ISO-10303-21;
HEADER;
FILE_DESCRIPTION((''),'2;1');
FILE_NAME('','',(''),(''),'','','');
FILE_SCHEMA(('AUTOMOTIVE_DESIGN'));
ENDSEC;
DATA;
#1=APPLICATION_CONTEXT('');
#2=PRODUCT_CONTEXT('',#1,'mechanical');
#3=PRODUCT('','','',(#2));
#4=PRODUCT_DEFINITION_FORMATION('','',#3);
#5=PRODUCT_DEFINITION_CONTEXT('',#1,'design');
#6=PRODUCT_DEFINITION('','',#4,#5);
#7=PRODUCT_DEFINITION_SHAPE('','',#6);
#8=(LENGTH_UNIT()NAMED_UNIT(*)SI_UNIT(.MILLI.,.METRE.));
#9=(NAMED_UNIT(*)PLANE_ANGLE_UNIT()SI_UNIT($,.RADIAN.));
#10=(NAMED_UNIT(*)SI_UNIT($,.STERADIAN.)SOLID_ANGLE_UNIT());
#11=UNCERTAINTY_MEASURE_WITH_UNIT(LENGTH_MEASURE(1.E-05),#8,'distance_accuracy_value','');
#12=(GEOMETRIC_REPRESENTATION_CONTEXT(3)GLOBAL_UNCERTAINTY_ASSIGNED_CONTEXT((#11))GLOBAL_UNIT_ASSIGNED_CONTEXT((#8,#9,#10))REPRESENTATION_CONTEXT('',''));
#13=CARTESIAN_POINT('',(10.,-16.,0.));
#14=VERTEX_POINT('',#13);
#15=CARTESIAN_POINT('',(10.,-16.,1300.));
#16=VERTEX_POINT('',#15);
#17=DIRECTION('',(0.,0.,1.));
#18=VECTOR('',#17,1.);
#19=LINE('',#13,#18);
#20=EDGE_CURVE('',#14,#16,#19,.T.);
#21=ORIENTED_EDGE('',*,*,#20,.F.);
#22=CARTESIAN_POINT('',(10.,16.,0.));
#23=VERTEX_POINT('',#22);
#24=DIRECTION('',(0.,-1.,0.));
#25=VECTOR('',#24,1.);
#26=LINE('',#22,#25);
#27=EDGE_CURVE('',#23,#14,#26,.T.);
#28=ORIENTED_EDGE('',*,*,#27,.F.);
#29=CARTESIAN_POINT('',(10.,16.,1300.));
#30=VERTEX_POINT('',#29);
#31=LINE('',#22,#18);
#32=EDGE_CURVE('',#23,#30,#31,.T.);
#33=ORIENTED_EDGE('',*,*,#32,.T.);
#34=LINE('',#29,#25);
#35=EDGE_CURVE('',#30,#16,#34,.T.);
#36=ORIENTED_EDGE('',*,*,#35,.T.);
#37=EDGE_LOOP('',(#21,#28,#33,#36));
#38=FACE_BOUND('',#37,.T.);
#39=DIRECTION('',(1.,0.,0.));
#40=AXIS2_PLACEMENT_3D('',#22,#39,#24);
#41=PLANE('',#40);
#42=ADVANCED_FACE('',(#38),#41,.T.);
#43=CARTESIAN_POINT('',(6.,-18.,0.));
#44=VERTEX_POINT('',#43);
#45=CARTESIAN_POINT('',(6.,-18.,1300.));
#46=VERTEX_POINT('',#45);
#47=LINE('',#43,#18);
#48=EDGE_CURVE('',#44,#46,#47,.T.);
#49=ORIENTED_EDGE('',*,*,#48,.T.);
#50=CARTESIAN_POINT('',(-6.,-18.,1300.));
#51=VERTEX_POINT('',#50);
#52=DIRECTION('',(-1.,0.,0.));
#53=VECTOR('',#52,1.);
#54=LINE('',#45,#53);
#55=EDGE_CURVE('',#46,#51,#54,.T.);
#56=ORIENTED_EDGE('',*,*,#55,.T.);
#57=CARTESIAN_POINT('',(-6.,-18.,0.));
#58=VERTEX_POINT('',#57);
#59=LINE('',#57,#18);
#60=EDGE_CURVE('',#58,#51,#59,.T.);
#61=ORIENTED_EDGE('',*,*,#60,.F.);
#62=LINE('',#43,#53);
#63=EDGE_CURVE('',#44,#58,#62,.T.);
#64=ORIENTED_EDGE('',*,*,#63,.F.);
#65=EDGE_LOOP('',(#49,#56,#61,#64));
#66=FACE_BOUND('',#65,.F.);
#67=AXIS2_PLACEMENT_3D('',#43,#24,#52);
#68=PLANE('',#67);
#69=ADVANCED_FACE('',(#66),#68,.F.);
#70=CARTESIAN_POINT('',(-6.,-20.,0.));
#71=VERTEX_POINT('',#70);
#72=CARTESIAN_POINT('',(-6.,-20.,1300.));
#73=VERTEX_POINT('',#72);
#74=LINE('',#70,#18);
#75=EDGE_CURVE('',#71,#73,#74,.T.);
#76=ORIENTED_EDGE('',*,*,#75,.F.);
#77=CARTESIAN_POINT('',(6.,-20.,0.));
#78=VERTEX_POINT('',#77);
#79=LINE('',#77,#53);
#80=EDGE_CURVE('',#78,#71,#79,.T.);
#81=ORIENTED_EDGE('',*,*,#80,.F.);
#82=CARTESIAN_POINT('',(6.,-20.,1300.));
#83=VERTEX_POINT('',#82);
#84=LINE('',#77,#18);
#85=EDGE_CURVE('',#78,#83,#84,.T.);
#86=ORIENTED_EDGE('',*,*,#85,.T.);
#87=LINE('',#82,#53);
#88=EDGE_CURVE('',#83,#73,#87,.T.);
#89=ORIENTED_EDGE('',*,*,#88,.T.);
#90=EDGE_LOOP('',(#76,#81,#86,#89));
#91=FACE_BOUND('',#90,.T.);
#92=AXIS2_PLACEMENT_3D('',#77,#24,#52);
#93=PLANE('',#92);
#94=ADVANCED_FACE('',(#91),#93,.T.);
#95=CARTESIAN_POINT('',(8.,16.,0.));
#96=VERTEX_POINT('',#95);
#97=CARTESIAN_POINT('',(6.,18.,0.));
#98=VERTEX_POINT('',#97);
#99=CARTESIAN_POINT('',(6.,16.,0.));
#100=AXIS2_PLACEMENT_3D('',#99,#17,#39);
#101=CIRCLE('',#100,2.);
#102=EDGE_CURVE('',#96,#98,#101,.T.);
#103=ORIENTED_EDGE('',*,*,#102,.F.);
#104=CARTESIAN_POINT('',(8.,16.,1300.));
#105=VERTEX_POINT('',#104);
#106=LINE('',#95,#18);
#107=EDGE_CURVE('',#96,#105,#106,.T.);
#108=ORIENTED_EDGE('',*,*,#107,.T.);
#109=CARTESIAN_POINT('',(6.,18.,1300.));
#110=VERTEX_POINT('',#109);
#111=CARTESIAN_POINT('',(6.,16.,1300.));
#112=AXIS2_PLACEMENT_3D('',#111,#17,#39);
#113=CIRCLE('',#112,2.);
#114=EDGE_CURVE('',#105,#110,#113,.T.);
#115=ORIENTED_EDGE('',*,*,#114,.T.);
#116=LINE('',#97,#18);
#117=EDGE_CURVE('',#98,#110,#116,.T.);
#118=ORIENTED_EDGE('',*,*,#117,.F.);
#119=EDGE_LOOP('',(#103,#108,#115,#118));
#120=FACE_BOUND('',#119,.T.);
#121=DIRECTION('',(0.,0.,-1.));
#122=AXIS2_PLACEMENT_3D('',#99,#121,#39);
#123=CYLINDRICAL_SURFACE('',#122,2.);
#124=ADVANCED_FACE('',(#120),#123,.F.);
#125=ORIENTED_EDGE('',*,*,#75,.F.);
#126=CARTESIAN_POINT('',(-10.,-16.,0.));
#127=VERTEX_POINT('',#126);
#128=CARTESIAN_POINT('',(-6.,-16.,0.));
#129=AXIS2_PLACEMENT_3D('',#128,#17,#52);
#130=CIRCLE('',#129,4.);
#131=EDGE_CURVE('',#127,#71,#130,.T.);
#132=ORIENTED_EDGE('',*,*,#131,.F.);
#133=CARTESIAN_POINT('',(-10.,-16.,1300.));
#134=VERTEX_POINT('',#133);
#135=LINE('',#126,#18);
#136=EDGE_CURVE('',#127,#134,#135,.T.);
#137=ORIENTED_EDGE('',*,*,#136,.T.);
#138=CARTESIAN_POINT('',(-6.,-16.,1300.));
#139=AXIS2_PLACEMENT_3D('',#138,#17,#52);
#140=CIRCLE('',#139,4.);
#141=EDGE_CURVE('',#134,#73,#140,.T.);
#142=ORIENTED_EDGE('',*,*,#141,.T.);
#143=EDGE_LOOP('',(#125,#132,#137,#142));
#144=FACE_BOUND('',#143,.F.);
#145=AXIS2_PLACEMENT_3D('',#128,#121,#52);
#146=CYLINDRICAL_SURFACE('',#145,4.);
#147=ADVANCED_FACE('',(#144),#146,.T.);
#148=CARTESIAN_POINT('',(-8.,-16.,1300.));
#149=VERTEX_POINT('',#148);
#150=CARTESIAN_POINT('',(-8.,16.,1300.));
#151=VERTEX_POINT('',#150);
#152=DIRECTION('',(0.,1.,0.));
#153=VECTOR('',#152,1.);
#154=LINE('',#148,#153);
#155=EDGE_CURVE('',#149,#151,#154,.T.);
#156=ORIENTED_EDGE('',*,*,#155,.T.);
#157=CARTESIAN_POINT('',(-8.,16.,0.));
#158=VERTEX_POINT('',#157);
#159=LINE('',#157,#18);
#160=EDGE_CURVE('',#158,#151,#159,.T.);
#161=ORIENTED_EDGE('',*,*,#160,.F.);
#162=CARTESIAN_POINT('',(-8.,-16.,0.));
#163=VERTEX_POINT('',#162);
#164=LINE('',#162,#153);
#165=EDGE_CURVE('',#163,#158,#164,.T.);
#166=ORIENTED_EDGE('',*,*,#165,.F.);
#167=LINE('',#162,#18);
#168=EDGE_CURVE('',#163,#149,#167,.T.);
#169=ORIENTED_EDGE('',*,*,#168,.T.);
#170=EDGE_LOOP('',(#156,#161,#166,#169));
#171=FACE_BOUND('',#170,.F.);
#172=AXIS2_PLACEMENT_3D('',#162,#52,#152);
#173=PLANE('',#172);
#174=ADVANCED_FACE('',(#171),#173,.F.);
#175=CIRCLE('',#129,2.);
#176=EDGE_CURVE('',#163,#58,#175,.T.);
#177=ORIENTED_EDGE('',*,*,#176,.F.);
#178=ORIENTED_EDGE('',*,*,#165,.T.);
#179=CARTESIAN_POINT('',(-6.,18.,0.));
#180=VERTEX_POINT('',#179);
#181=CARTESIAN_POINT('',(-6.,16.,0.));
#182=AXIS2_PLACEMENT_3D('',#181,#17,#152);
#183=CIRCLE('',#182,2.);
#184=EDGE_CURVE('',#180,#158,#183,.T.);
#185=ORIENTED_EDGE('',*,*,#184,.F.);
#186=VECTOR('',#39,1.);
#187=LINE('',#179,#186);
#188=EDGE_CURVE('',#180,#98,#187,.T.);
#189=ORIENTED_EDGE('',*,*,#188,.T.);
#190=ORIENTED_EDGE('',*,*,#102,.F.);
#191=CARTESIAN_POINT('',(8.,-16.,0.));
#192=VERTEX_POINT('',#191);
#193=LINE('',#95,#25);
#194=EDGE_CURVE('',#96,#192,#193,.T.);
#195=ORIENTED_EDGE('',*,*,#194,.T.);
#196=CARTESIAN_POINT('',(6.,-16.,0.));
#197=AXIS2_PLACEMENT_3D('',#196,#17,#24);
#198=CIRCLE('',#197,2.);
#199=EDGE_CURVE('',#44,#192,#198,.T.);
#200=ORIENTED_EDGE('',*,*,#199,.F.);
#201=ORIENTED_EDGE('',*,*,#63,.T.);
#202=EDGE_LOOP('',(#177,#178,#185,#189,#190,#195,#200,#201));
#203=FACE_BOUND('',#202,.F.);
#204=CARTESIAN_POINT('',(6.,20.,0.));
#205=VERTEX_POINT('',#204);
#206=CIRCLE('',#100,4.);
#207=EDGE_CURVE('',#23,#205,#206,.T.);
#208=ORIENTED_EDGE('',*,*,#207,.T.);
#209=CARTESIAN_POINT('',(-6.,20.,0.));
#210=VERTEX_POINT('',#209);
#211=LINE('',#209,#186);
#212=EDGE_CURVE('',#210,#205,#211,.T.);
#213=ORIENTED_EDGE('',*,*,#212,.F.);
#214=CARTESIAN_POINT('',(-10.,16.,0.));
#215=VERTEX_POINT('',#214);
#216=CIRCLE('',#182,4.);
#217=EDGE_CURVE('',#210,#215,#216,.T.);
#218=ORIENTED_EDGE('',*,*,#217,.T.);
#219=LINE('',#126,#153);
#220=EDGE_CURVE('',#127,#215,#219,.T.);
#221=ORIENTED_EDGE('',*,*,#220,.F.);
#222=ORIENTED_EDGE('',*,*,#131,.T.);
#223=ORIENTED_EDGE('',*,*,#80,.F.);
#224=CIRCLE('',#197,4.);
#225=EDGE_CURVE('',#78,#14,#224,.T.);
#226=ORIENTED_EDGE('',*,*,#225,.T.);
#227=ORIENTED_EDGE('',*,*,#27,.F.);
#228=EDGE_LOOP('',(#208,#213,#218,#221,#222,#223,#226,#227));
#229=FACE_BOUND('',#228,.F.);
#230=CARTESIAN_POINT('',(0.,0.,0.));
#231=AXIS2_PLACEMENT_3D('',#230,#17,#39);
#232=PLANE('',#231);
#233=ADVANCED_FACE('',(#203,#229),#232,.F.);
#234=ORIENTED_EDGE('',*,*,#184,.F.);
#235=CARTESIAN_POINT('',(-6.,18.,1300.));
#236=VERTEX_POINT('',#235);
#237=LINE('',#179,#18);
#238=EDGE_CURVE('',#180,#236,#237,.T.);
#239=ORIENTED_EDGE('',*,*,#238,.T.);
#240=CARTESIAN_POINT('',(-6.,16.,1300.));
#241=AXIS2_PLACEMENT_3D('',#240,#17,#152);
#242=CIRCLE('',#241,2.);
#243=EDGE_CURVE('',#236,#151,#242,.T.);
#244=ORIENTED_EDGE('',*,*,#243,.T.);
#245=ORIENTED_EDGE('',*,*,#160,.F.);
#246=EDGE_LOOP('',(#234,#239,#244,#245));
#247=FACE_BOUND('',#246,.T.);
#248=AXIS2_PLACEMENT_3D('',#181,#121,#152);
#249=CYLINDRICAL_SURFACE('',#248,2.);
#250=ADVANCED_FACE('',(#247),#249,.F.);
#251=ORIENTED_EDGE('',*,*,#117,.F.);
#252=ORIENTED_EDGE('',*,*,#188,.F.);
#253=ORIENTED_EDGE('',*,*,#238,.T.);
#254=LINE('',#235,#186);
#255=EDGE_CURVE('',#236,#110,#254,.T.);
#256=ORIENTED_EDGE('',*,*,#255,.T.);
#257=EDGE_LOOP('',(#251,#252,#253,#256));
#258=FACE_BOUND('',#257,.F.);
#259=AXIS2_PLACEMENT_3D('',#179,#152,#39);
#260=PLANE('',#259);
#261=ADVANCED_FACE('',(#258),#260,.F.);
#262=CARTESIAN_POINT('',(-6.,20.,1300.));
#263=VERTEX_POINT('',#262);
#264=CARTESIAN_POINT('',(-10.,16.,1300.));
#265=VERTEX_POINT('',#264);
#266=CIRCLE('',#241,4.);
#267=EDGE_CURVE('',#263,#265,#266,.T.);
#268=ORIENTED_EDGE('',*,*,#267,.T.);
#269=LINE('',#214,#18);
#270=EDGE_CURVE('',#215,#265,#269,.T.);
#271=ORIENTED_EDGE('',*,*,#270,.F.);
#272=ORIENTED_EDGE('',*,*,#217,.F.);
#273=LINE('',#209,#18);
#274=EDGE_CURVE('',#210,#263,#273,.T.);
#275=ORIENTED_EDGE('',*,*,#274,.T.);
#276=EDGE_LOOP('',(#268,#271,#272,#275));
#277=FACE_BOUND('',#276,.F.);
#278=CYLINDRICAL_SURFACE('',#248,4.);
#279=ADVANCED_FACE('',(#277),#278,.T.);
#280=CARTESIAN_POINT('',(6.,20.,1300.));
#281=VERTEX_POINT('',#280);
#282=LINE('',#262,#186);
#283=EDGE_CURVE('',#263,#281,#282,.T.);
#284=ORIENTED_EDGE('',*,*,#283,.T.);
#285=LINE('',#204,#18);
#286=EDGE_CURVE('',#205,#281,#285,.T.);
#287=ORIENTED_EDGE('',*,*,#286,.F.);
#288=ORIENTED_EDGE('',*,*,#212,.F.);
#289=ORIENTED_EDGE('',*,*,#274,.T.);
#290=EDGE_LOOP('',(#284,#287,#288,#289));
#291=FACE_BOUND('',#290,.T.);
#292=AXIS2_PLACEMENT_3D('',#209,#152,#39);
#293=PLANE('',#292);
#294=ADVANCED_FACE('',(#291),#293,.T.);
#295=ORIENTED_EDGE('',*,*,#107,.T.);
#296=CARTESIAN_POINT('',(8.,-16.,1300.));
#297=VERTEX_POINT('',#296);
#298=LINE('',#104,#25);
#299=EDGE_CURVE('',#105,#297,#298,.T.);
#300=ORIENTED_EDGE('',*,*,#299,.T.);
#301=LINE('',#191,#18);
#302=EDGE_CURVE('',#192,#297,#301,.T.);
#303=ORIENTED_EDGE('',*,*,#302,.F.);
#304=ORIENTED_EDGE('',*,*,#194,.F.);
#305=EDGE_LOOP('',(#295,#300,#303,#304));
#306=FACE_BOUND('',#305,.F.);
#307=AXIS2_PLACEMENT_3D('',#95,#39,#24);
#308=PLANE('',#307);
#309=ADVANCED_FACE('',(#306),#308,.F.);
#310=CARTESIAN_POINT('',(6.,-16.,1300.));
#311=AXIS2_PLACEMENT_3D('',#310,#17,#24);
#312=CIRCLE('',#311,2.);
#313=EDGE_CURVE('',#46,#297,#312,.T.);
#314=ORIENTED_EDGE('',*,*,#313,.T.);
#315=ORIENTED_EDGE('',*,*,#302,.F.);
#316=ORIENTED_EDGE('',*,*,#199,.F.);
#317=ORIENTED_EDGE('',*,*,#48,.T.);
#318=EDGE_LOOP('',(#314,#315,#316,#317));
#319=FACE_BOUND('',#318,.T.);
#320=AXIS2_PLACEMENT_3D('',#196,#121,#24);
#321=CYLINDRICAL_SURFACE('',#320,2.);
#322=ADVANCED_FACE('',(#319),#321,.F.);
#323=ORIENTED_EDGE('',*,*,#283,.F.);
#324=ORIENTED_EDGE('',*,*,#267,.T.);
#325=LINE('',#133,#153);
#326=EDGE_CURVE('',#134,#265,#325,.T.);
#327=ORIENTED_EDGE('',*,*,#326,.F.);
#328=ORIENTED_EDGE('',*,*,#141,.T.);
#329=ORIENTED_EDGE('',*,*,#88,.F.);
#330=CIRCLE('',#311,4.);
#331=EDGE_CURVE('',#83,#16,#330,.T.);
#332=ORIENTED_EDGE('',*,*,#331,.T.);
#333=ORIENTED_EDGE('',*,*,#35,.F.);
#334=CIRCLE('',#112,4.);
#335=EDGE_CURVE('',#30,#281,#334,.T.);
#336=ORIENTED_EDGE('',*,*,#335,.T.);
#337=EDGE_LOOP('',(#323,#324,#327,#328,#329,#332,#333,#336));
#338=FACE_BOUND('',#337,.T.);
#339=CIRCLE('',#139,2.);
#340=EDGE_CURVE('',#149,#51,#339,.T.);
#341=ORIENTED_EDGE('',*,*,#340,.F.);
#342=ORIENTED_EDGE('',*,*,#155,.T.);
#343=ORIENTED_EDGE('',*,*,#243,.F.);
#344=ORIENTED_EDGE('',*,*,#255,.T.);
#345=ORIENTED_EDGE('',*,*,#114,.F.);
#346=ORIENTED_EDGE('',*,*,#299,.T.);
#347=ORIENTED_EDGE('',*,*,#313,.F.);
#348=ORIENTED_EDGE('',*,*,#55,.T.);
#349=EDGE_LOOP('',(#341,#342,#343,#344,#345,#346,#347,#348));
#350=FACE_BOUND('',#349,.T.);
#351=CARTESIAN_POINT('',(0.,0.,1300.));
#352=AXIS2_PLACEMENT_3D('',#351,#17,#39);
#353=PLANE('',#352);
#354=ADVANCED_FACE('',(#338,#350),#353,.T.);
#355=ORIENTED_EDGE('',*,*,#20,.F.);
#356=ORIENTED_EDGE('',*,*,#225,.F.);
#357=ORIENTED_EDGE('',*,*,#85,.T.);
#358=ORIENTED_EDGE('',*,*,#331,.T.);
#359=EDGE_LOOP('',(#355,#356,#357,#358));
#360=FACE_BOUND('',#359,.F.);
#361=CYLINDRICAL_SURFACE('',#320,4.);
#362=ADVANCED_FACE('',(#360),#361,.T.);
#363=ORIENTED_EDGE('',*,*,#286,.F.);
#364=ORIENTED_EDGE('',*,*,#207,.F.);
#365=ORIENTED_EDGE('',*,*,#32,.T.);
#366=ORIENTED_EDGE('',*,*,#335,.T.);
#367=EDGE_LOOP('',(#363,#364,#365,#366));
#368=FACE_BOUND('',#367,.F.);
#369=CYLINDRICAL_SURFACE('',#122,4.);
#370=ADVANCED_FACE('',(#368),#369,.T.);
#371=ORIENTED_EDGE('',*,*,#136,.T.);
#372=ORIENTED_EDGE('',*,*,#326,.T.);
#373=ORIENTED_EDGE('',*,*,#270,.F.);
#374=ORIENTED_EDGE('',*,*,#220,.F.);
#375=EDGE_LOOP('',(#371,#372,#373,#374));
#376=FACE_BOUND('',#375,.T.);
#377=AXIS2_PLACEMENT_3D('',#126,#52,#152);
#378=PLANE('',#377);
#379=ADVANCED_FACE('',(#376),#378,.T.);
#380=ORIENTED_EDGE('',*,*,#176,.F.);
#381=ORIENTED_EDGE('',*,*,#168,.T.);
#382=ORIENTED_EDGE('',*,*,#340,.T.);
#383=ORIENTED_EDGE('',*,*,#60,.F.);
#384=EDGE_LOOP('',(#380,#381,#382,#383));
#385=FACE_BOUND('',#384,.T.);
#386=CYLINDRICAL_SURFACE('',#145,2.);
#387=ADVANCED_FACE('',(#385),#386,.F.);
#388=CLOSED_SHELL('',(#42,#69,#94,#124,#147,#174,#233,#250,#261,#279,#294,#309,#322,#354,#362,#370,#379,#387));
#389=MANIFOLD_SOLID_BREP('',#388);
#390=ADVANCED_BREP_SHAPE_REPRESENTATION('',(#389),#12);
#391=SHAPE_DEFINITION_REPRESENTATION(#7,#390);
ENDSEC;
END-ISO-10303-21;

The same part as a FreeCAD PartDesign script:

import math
import FreeCAD as App
import Part
import Sketcher

doc = App.newDocument("Part")
body = doc.addObject("PartDesign::Body", "Body")

# Sketch on XY plane
sketch1 = doc.addObject("Sketcher::SketchObject", "Sketch")
body.addObject(sketch1)
sketch1.AttachmentSupport = (doc.XY_Plane, [""])
sketch1.MapMode = "FlatFace"
sketch1.addGeometry([
    Part.LineSegment(App.Vector(-10, 16, 0), App.Vector(-10, -16, 0)),  # 0
    Part.ArcOfCircle(Part.Circle(App.Vector(-6, -16, 0), App.Vector(0, 0, 1), 4), math.radians(180), math.radians(270)),  # 1
    Part.LineSegment(App.Vector(-6, -20, 0), App.Vector(6, -20, 0)),  # 2
    Part.ArcOfCircle(Part.Circle(App.Vector(6, -16, 0), App.Vector(0, 0, 1), 4), math.radians(-90), math.radians(0)),  # 3
    Part.LineSegment(App.Vector(10, -16, 0), App.Vector(10, 16, 0)),  # 4
    Part.ArcOfCircle(Part.Circle(App.Vector(6, 16, 0), App.Vector(0, 0, 1), 4), math.radians(0), math.radians(90)),  # 5
    Part.LineSegment(App.Vector(6, 20, 0), App.Vector(-6, 20, 0)),  # 6
    Part.ArcOfCircle(Part.Circle(App.Vector(-6, 16, 0), App.Vector(0, 0, 1), 4), math.radians(90), math.radians(180)),  # 7
    Part.ArcOfCircle(Part.Circle(App.Vector(-6, 16, 0), App.Vector(0, 0, 1), 2), math.radians(90), math.radians(180)),  # 8
    Part.LineSegment(App.Vector(-6, 18, 0), App.Vector(6, 18, 0)),  # 9
    Part.ArcOfCircle(Part.Circle(App.Vector(6, 16, 0), App.Vector(0, 0, 1), 2), math.radians(0), math.radians(90)),  # 10
    Part.LineSegment(App.Vector(8, 16, 0), App.Vector(8, -16, 0)),  # 11
    Part.ArcOfCircle(Part.Circle(App.Vector(6, -16, 0), App.Vector(0, 0, 1), 2), math.radians(-90), math.radians(0)),  # 12
    Part.LineSegment(App.Vector(6, -18, 0), App.Vector(-6, -18, 0)),  # 13
    Part.ArcOfCircle(Part.Circle(App.Vector(-6, -16, 0), App.Vector(0, 0, 1), 2), math.radians(180), math.radians(270)),  # 14
    Part.LineSegment(App.Vector(-8, -16, 0), App.Vector(-8, 16, 0)),  # 15
], False)
sketch1.addConstraint([
    Sketcher.Constraint("Tangent", 0, 2, 1, 1),
    Sketcher.Constraint("Tangent", 1, 2, 2, 1),
    Sketcher.Constraint("Tangent", 2, 2, 3, 1),
    Sketcher.Constraint("Tangent", 3, 2, 4, 1),
    Sketcher.Constraint("Tangent", 4, 2, 5, 1),
    Sketcher.Constraint("Tangent", 5, 2, 6, 1),
    Sketcher.Constraint("Tangent", 6, 2, 7, 1),
    Sketcher.Constraint("Tangent", 7, 2, 0, 1),
    Sketcher.Constraint("Tangent", 8, 1, 9, 1),
    Sketcher.Constraint("Tangent", 9, 2, 10, 2),
    Sketcher.Constraint("Tangent", 10, 1, 11, 1),
    Sketcher.Constraint("Tangent", 11, 2, 12, 2),
    Sketcher.Constraint("Tangent", 12, 1, 13, 1),
    Sketcher.Constraint("Tangent", 13, 2, 14, 2),
    Sketcher.Constraint("Tangent", 14, 1, 15, 1),
    Sketcher.Constraint("Tangent", 15, 2, 8, 2),
    Sketcher.Constraint("Vertical", 0),
    Sketcher.Constraint("Horizontal", 2),
    Sketcher.Constraint("Vertical", 4),
    Sketcher.Constraint("Horizontal", 6),
    Sketcher.Constraint("Horizontal", 9),
    Sketcher.Constraint("Vertical", 11),
    Sketcher.Constraint("Horizontal", 13),
    Sketcher.Constraint("Vertical", 15),
    Sketcher.Constraint("Coincident", 8, 3, 7, 3),
    Sketcher.Constraint("Coincident", 10, 3, 5, 3),
    Sketcher.Constraint("Coincident", 12, 3, 3, 3),
    Sketcher.Constraint("Equal", 1, 3),
    Sketcher.Constraint("Equal", 3, 5),
    Sketcher.Constraint("Equal", 5, 7),
    Sketcher.Constraint("Equal", 12, 14),
    Sketcher.Constraint("Symmetric", 1, 3, 5, 3, -1, 1),
    Sketcher.Constraint("Radius", 1, 4.0),
    Sketcher.Constraint("Radius", 8, 2.0),
    Sketcher.Constraint("DistanceX", 0, 2, -1, 1, 10.0),
    Sketcher.Constraint("DistanceY", 1, 2, -1, 1, 20.0),
])
pad1 = doc.addObject("PartDesign::Pad", "Pad")
body.addObject(pad1)
pad1.Profile = sketch1
pad1.Length = 1300

doc.recompute()
